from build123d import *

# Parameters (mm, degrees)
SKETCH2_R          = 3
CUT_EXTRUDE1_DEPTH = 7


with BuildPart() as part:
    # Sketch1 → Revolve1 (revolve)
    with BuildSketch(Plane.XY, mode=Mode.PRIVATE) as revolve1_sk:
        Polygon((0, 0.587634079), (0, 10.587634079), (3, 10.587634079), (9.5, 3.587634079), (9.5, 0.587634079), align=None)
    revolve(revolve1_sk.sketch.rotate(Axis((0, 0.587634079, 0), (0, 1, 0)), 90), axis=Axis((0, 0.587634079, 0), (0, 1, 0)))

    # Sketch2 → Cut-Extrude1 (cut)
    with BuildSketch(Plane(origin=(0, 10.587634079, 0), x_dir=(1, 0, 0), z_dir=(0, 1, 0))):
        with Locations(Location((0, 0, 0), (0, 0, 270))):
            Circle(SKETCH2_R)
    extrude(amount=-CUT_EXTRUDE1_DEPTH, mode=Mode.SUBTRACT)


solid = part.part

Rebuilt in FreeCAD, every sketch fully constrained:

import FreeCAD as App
import Part
import Sketcher

V = App.Vector


def add_polygon(sketch, points):
    """Adds a closed chain of lines whose ends are joined by coincident constraints."""
    first, n = sketch.GeometryCount, len(points)
    for a, b in zip(points, points[1:] + points[:1]):
        sketch.addGeometry(Part.LineSegment(App.Vector(*a, 0), App.Vector(*b, 0)), False)
    for i in range(n):
        sketch.addConstraint(Sketcher.Constraint("Coincident", first + i, 2, first + (i + 1) % n, 1))

doc = App.newDocument("Part")
params = doc.addObject("Spreadsheet::Sheet", "Params")
for row, (alias, value) in enumerate([
    ("sketch1_width", "3 mm"),
    ("sketch1_height", "10 mm"),
    ("sketch1_width2", "9.5 mm"),
    ("revolution_angle", "360 deg"),
    ("sketch2_diameter", "6 mm"),
    ("pocket1_length", "7 mm"),
], start=1):
    params.set(f"A{row}", alias)
    params.set(f"B{row}", "=" + value)
    params.setAlias(f"B{row}", alias)

body = doc.addObject("PartDesign::Body", "Body")

# Sketch on XY plane
sketch1 = body.newObject("Sketcher::SketchObject", "Sketch")
sketch1.AttachmentSupport = (doc.getObject("XY_Plane"), [""])
sketch1.MapMode = "FlatFace"
add_polygon(sketch1, [(0, 10.6), (0, 0.6), (9.5, 0.6), (9.5, 3.6), (3, 10.6)])  # lines 0-4
sketch1.addConstraint([
    Sketcher.Constraint("Vertical", 0),
    Sketcher.Constraint("Horizontal", 1),
    Sketcher.Constraint("Vertical", 2),
    Sketcher.Constraint("Horizontal", 4),
    Sketcher.Constraint("PointOnObject", 0, 2, -2),
    Sketcher.Constraint("Equal", 4, 2),
    Sketcher.Constraint("DistanceX", 4, 2, 4, 1, 3.0),
    Sketcher.Constraint("DistanceY", 0, 2, 0, 1, 10.0),
    Sketcher.Constraint("DistanceX", 1, 1, 1, 2, 9.5),
    Sketcher.Constraint("DistanceY", -1, 1, 0, 2, 0.587634),
])
sketch1.setExpression("Constraints[11]", "Params.sketch1_width")
sketch1.setExpression("Constraints[12]", "Params.sketch1_height")
sketch1.setExpression("Constraints[13]", "Params.sketch1_width2")
revolution = body.newObject("PartDesign::Revolution", "Revolution")
revolution.Profile = sketch1
revolution.ReferenceAxis = (sketch1, ["V_Axis"])
revolution.setExpression("Angle", "Params.revolution_angle")

# Sketch on XZ plane
sketch2 = body.newObject("Sketcher::SketchObject", "Sketch001")
sketch2.AttachmentSupport = (doc.getObject("XZ_Plane"), [""])
sketch2.MapMode = "FlatFace"
sketch2.AttachmentOffset = App.Placement(V(0, 0, -10.587634), App.Rotation())
sketch2.addGeometry(Part.Circle(V(0, 0, 0), V(0, 0, 1), 3), False)
sketch2.addConstraint([
    Sketcher.Constraint("Coincident", 0, 3, -1, 1),
    Sketcher.Constraint("Diameter", 0, 6.0),
])
sketch2.setExpression("Constraints[1]", "Params.sketch2_diameter")
pocket1 = body.newObject("PartDesign::Pocket", "Pocket")
pocket1.Profile = sketch2
pocket1.setExpression("Length", "Params.pocket1_length")
pocket1.Reversed = True

doc.recompute()
